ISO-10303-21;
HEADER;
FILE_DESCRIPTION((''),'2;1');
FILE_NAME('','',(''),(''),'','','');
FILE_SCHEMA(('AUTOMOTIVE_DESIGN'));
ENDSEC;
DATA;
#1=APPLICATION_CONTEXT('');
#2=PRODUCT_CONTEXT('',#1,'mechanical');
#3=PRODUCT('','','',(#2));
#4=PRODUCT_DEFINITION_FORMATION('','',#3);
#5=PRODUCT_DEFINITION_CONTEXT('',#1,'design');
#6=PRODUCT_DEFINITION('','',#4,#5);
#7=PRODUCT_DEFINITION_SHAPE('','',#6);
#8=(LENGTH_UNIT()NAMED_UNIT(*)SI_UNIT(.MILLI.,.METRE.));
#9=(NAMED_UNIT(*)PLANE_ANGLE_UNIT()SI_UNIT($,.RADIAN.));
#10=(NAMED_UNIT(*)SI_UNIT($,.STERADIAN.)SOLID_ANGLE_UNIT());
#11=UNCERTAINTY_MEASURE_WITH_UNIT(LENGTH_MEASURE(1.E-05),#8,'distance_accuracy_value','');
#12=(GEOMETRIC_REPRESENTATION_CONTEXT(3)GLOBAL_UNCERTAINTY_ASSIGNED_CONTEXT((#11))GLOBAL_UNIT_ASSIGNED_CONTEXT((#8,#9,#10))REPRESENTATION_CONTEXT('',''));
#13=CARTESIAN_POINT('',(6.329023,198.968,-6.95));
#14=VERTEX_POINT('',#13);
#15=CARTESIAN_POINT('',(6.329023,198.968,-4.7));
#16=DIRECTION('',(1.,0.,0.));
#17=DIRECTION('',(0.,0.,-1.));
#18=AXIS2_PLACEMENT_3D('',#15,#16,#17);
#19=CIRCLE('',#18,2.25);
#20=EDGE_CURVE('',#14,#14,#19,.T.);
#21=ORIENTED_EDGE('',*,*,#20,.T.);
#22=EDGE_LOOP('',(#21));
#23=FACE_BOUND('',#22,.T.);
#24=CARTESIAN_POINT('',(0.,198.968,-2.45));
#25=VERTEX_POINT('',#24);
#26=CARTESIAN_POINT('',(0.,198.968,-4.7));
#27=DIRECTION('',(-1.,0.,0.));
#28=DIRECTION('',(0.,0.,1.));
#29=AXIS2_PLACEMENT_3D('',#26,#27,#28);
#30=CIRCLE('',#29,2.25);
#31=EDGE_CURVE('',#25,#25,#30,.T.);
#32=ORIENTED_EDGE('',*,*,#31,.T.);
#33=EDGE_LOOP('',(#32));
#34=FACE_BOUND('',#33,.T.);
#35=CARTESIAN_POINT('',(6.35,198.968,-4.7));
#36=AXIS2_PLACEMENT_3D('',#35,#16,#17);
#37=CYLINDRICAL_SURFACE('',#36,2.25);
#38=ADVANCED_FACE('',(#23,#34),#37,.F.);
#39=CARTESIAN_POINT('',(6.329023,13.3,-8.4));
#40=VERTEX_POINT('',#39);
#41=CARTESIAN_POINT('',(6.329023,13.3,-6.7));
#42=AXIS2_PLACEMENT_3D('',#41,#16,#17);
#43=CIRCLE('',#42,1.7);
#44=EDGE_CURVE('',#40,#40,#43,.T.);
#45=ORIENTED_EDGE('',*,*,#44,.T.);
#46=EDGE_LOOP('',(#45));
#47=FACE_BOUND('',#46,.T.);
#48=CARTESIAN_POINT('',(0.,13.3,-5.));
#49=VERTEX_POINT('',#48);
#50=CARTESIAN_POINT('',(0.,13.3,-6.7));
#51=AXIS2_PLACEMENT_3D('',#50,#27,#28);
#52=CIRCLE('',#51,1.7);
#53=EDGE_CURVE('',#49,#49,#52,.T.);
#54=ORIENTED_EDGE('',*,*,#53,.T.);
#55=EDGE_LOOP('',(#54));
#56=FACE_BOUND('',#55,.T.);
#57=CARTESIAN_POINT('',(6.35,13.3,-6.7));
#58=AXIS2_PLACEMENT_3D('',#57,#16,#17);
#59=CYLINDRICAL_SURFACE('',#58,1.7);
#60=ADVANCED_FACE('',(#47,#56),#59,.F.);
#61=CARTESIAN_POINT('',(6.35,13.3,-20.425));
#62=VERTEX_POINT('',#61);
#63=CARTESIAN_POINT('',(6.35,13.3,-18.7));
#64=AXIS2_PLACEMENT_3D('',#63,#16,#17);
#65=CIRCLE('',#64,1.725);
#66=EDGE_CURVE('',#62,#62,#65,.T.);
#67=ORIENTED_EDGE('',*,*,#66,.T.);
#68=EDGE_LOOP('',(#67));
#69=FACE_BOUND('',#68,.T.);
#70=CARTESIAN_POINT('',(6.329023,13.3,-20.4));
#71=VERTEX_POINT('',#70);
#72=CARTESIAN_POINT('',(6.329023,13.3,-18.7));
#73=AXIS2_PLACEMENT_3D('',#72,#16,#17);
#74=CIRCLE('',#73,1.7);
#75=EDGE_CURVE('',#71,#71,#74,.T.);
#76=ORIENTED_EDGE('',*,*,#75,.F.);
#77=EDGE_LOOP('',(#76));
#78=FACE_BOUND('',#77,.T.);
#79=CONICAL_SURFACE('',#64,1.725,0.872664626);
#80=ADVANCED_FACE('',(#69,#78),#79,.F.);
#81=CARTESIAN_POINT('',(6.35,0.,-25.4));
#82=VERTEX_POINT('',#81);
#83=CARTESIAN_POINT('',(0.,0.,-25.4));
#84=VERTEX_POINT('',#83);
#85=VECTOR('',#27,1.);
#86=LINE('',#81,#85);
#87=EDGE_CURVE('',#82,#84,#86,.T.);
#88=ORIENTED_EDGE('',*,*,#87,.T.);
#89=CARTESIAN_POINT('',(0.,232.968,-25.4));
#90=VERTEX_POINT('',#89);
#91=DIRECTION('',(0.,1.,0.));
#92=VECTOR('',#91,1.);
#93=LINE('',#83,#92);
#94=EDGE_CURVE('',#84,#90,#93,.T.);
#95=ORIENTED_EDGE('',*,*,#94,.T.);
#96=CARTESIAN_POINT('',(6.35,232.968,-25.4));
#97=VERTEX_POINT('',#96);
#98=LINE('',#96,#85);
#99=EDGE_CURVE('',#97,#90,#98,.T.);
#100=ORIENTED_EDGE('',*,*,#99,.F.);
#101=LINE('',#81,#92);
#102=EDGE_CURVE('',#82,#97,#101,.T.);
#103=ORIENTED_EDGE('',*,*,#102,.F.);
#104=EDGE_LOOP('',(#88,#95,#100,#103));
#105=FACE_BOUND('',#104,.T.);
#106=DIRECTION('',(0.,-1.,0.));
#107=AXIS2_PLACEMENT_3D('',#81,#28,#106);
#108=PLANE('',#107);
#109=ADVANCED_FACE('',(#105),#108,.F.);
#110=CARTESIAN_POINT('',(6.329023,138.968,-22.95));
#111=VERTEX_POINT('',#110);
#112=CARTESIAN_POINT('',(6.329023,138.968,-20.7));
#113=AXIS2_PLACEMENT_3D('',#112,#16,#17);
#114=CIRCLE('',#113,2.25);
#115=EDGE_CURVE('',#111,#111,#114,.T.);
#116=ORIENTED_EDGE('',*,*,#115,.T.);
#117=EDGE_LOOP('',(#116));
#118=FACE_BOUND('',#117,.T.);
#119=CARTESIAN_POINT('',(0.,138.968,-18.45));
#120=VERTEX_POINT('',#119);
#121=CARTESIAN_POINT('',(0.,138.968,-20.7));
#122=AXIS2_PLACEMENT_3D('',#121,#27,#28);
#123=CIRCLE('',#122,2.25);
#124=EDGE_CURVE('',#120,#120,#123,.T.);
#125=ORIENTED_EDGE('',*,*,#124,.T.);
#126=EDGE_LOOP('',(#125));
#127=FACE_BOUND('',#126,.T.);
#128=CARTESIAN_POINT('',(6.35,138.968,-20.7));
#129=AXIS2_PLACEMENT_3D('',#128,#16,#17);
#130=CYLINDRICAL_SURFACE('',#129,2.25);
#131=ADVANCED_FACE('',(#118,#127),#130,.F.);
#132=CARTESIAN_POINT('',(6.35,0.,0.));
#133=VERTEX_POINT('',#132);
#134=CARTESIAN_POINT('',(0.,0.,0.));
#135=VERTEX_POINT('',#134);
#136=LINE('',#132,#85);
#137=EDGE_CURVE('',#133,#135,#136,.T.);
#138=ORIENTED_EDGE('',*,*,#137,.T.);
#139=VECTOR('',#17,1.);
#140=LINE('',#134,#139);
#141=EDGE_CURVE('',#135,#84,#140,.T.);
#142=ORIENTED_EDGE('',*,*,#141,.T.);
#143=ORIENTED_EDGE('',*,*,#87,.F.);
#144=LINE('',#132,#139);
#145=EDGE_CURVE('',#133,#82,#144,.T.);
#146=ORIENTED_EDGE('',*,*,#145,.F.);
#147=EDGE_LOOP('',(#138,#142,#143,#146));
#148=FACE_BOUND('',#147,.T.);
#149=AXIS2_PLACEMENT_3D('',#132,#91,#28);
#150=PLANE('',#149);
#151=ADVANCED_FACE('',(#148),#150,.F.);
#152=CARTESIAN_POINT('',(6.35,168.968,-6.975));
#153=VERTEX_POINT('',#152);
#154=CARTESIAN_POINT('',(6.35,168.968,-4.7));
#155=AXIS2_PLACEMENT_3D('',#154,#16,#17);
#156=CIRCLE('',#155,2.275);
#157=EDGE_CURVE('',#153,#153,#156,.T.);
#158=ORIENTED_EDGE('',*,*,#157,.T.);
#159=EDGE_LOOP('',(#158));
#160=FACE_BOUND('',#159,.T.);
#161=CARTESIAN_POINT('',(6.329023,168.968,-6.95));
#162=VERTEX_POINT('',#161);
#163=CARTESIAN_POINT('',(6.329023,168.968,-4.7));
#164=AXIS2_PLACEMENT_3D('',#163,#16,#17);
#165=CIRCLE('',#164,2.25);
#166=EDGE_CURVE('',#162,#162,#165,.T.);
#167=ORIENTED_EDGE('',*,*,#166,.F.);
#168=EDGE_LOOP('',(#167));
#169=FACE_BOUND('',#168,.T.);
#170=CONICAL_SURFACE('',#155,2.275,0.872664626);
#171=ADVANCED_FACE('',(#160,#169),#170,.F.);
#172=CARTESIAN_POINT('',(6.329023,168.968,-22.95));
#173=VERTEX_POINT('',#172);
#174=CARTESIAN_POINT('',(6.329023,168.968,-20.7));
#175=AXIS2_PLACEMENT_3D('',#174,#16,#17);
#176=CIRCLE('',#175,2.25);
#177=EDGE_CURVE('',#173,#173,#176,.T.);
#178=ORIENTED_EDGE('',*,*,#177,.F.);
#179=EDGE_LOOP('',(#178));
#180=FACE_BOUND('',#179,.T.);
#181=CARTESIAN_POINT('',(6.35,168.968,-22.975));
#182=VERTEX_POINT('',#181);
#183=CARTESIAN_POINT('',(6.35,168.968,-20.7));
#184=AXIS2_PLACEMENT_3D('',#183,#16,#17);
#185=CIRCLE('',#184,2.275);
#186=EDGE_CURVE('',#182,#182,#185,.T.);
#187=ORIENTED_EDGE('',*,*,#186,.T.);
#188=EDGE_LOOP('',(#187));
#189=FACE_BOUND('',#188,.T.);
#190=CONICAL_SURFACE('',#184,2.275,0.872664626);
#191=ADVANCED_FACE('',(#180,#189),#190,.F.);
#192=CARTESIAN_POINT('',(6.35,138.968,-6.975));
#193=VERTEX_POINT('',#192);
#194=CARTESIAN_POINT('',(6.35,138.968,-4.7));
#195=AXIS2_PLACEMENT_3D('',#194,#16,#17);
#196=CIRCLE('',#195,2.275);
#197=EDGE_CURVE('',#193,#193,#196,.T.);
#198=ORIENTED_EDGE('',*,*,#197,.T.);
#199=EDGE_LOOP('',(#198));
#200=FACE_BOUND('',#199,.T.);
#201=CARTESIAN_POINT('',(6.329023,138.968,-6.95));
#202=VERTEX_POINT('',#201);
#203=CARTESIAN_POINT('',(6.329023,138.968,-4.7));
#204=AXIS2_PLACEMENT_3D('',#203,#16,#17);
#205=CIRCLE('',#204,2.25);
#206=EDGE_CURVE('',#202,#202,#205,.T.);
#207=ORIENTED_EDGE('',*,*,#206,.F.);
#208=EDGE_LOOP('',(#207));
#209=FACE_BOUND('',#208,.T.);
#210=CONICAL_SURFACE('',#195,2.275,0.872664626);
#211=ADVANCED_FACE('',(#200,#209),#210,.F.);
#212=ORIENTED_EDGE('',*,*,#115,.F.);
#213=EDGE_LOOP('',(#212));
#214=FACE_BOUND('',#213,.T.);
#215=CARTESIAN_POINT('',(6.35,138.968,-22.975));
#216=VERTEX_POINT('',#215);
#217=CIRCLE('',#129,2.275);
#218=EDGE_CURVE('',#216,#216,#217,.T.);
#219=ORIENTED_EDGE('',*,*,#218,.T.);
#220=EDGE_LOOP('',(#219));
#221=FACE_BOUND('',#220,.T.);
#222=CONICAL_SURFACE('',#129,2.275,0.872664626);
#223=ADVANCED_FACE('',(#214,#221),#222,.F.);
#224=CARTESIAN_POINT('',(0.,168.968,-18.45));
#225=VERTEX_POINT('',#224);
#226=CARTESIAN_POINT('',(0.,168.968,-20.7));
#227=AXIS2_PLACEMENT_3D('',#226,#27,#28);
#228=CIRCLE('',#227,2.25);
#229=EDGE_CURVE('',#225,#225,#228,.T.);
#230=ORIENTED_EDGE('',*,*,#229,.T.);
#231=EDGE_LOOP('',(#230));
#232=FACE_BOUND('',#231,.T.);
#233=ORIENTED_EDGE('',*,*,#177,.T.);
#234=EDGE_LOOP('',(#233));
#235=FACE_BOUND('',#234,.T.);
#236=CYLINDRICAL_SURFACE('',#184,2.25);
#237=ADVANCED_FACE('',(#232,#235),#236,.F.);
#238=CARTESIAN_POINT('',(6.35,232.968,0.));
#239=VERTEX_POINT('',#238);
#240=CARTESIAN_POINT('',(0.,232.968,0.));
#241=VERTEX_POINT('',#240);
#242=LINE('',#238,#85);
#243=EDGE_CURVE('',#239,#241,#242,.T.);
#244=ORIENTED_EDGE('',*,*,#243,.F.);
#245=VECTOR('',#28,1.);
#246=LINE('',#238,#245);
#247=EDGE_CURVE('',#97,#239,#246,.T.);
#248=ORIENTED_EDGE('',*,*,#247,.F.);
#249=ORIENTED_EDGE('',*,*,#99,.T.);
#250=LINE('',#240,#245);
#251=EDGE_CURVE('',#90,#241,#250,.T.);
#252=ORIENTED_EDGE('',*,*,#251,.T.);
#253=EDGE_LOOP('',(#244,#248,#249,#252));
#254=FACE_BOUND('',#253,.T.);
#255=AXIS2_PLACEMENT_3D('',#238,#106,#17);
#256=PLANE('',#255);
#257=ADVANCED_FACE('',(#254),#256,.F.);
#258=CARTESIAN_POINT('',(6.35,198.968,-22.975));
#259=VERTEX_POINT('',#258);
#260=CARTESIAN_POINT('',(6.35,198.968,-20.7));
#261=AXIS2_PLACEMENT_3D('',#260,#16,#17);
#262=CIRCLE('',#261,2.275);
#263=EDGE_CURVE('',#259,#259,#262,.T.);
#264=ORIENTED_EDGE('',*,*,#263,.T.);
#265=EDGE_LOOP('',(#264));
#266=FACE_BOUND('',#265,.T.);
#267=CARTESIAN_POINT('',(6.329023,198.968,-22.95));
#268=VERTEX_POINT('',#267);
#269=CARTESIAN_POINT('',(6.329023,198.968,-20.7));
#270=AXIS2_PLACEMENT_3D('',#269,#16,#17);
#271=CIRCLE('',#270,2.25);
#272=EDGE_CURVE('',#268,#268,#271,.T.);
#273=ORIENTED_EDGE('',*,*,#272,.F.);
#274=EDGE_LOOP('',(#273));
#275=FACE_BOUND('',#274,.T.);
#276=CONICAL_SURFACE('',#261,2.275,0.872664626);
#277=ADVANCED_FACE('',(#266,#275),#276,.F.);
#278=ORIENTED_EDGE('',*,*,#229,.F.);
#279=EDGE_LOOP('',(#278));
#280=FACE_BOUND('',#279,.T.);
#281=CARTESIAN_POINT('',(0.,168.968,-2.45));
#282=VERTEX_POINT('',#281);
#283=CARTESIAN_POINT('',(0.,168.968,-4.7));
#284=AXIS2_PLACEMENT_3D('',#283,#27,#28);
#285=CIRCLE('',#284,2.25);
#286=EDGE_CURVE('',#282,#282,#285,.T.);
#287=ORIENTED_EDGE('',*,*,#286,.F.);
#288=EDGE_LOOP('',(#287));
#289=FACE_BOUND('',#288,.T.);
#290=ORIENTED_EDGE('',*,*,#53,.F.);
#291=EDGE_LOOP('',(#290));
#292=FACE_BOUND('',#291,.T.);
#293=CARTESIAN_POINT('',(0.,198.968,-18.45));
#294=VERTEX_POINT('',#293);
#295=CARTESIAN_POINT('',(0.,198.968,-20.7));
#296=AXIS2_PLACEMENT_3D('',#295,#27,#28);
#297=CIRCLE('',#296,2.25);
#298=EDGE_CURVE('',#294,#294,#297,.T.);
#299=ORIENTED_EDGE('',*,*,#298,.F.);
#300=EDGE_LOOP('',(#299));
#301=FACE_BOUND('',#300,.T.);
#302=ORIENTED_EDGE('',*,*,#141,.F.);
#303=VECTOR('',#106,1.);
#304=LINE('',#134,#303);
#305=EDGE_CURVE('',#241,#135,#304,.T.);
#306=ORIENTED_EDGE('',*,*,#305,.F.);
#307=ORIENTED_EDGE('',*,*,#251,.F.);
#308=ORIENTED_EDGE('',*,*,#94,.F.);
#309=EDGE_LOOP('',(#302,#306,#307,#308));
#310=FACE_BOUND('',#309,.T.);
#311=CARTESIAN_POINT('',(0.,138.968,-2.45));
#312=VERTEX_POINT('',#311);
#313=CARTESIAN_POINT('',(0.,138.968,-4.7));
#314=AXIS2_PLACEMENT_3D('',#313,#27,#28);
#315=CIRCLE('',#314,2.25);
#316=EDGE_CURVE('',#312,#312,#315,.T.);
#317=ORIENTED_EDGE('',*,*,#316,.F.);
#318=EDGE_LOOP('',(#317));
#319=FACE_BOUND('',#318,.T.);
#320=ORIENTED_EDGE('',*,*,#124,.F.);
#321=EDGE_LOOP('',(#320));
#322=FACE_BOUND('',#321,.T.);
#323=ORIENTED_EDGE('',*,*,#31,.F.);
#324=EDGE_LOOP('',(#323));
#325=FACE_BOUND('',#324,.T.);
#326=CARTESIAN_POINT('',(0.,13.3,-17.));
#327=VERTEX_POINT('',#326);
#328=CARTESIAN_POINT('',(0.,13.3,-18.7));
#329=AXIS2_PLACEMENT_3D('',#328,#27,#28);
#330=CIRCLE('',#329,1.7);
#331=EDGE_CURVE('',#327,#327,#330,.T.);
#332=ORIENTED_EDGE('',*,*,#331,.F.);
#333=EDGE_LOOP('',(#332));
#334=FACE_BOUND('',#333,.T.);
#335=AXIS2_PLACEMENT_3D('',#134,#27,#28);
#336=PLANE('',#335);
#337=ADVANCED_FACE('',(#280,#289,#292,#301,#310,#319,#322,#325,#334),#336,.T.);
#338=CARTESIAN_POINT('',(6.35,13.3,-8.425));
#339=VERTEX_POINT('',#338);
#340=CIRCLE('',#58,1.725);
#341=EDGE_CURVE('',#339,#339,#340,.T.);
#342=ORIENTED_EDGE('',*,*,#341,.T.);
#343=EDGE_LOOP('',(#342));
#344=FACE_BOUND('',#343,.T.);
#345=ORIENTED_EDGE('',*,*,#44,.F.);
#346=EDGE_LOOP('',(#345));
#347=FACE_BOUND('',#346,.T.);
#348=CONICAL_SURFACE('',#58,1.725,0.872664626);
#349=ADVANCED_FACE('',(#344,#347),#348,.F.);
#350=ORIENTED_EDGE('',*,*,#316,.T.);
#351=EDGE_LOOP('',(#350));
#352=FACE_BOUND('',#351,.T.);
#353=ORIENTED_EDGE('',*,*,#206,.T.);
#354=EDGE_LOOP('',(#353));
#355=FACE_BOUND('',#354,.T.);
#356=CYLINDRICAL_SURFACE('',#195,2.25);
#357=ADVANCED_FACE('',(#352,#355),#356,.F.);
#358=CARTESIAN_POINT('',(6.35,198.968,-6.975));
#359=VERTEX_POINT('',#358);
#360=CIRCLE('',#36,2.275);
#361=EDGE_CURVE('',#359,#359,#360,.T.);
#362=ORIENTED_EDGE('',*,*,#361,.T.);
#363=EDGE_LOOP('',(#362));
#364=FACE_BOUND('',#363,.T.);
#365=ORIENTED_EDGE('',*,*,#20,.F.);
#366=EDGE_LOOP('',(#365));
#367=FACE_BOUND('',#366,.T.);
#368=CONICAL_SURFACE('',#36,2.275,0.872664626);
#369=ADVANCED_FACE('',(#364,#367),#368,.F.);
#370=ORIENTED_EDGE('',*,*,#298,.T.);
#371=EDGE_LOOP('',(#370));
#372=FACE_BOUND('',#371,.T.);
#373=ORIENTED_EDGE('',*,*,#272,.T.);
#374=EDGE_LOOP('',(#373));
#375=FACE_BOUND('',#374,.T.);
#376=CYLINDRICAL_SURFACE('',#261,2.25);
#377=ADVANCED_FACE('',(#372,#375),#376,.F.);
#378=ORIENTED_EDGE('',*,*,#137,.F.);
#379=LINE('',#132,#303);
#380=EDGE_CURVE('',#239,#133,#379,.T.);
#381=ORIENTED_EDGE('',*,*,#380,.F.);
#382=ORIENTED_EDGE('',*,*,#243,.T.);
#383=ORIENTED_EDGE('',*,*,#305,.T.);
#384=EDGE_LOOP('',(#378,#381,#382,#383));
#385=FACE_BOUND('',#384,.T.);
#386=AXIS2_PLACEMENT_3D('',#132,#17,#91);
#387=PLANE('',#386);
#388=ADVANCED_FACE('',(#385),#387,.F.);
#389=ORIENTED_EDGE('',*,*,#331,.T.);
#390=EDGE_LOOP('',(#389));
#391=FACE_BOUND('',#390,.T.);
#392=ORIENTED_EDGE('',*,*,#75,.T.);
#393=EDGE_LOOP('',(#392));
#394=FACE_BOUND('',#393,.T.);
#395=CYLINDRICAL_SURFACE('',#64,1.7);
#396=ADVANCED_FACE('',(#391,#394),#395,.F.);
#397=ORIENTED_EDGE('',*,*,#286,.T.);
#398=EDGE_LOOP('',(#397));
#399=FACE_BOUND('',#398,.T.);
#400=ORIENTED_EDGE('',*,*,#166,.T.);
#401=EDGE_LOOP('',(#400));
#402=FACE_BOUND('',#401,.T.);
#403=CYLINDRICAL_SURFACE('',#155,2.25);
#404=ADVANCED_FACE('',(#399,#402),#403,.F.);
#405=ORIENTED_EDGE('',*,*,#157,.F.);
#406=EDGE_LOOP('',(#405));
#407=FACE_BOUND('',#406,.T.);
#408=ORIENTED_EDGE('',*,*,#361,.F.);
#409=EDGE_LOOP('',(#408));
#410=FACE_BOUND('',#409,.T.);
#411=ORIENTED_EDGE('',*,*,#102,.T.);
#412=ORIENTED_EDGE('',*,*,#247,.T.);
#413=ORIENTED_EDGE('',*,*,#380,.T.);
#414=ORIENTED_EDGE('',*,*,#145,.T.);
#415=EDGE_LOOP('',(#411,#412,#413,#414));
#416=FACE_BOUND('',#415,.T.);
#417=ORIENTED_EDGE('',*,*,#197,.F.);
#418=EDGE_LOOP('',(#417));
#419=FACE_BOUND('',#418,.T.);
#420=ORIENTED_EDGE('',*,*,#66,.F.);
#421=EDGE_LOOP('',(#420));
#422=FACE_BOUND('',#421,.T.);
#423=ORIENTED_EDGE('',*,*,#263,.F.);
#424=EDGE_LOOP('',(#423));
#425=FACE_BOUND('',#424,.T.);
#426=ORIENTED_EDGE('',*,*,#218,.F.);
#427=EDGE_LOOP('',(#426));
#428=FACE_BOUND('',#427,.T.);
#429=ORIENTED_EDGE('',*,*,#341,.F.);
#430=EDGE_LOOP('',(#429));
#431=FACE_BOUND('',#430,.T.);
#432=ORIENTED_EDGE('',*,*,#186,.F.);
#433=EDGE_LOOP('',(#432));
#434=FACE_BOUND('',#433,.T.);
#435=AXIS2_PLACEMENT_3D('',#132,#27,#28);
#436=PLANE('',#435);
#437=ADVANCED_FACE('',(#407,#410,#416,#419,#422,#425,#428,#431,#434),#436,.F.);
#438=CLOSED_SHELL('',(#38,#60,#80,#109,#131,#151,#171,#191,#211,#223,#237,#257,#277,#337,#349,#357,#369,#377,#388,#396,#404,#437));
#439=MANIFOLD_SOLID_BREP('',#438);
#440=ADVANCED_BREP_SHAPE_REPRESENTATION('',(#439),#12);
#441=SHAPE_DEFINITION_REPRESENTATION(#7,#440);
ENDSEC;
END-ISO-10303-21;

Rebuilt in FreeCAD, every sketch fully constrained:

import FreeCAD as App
import Part
import Sketcher

V = App.Vector
Q = App.Units.Quantity

doc = App.newDocument("Part")
body = doc.addObject("PartDesign::Body", "Body")

sketch1 = body.newObject("Sketcher::SketchObject", "Sketch")
sketch1.AttachmentSupport = (doc.getObject("YZ_Plane"), [""])
sketch1.MapMode = "FlatFace"
sketch1.addGeometry(Part.LineSegment(V(233, 0, 0), V(0, 0, 0)), False)
sketch1.addGeometry(Part.LineSegment(V(0, 0, 0), V(0, -25, 0)), False)
sketch1.addGeometry(Part.LineSegment(V(0, -25, 0), V(233, -25, 0)), False)
sketch1.addGeometry(Part.LineSegment(V(233, -25, 0), V(233, 0, 0)), False)
sketch1.addConstraint(Sketcher.Constraint("Coincident", 0, 2, 1, 1))
sketch1.addConstraint(Sketcher.Constraint("Coincident", 1, 2, 2, 1))
sketch1.addConstraint(Sketcher.Constraint("Coincident", 2, 2, 3, 1))
sketch1.addConstraint(Sketcher.Constraint("Coincident", 3, 2, 0, 1))
sketch1.addConstraint(Sketcher.Constraint("Horizontal", 0))
sketch1.addConstraint(Sketcher.Constraint("Vertical", 1))
sketch1.addConstraint(Sketcher.Constraint("Horizontal", 2))
sketch1.addConstraint(Sketcher.Constraint("Vertical", 3))
sketch1.addConstraint(Sketcher.Constraint("Coincident", 0, 2, -1, 1))
sketch1.addConstraint(Sketcher.Constraint("DistanceY", 1, 2, 1, 1, Q("1 in")))
sketch1.addConstraint(Sketcher.Constraint("DistanceX", 0, 2, 0, 1, Q("232.968 mm")))
pad1 = body.newObject("PartDesign::Pad", "Pad")
pad1.Profile = sketch1
pad1.Length = Q("0.25 in")

sketch2 = body.newObject("Sketcher::SketchObject", "Sketch001")
sketch2.AttachmentSupport = (doc.getObject("YZ_Plane"), [""])
sketch2.MapMode = "FlatFace"
sketch2.AttachmentOffset = App.Placement(V(0, 0, 0.25 * 25.4), App.Rotation())
sketch2.addGeometry(Part.Circle(V(13.3, -6.7, 0), V(0, 0, 1), 1.7), False)
sketch2.addGeometry(Part.Circle(V(13.3, -18.7, 0), V(0, 0, 1), 1.7), False)
sketch2.addConstraint(Sketcher.Constraint("Equal", 0, 1))
sketch2.addConstraint(Sketcher.Constraint("Vertical", 0, 3, 1, 3))
sketch2.addConstraint(Sketcher.Constraint("Diameter", 0, Q("3.4 mm")))
sketch2.addConstraint(Sketcher.Constraint("DistanceX", -1, 1, 0, 3, Q("13.3 mm")))
sketch2.addConstraint(Sketcher.Constraint("DistanceY", 0, 3, -1, 1, Q("6.7 mm")))
sketch2.addConstraint(Sketcher.Constraint("DistanceY", 1, 3, -1, 1, Q("18.7 mm")))
doc.recompute()
hole = body.newObject("PartDesign::Hole", "Hole")
hole.Profile = sketch2
hole.ThreadType = "None"
hole.Diameter = 3.4
hole.DepthType = "Dimension"
hole.Depth = Q("0.295 in")
hole.DrillPoint = "Angled"
hole.DrillPointAngle = 118
hole.HoleCutType = "Countersink"
hole.HoleCutDiameter = 3.45
hole.HoleCutCountersinkAngle = 100

sketch3 = body.newObject("Sketcher::SketchObject", "Sketch002")
sketch3.AttachmentSupport = (doc.getObject("YZ_Plane"), [""])
sketch3.MapMode = "FlatFace"
sketch3.AttachmentOffset = App.Placement(V(0, 0, 0.25 * 25.4), App.Rotation())
sketch3.addGeometry(Part.Circle(V(199, -4.7, 0), V(0, 0, 1), 2.2), False)
sketch3.addGeometry(Part.Circle(V(169, -4.7, 0), V(0, 0, 1), 2.2), False)
sketch3.addGeometry(Part.Circle(V(139, -4.7, 0), V(0, 0, 1), 2.2), False)
sketch3.addGeometry(Part.Circle(V(139, -20.7, 0), V(0, 0, 1), 2.2), False)
sketch3.addGeometry(Part.Circle(V(169, -20.7, 0), V(0, 0, 1), 2.2), False)
sketch3.addGeometry(Part.Circle(V(199, -20.7, 0), V(0, 0, 1), 2.2), False)
sketch3.addConstraint(Sketcher.Constraint("Equal", 0, 1))
sketch3.addConstraint(Sketcher.Constraint("Equal", 1, 2))
sketch3.addConstraint(Sketcher.Constraint("Equal", 2, 3))
sketch3.addConstraint(Sketcher.Constraint("Equal", 3, 4))
sketch3.addConstraint(Sketcher.Constraint("Equal", 4, 5))
sketch3.addConstraint(Sketcher.Constraint("Horizontal", 0, 3, 1, 3))
sketch3.addConstraint(Sketcher.Constraint("Horizontal", 1, 3, 2, 3))
sketch3.addConstraint(Sketcher.Constraint("Horizontal", 3, 3, 4, 3))
sketch3.addConstraint(Sketcher.Constraint("Horizontal", 4, 3, 5, 3))
sketch3.addConstraint(Sketcher.Constraint("Vertical", 2, 3, 3, 3))
sketch3.addConstraint(Sketcher.Constraint("Vertical", 1, 3, 4, 3))
sketch3.addConstraint(Sketcher.Constraint("Vertical", 0, 3, 5, 3))
sketch3.addConstraint(Sketcher.Constraint("Diameter", 0, Q("4.5 mm")))
sketch3.addConstraint(Sketcher.Constraint("DistanceX", -1, 1, 0, 3, Q("198.968 mm")))
sketch3.addConstraint(Sketcher.Constraint("DistanceY", 0, 3, -1, 1, Q("4.7 mm")))
sketch3.addConstraint(Sketcher.Constraint("DistanceX", -1, 1, 1, 3, Q("168.968 mm")))
sketch3.addConstraint(Sketcher.Constraint("DistanceX", -1, 1, 2, 3, Q("138.968 mm")))
sketch3.addConstraint(Sketcher.Constraint("DistanceY", 3, 3, -1, 1, Q("20.7 mm")))
doc.recompute()
hole2 = body.newObject("PartDesign::Hole", "Hole001")
hole2.Profile = sketch3
hole2.ThreadType = "None"
hole2.Diameter = 4.5
hole2.DepthType = "Dimension"
hole2.Depth = 10.100005
hole2.DrillPoint = "Angled"
hole2.DrillPointAngle = 118
hole2.HoleCutType = "Countersink"
hole2.HoleCutDiameter = 4.55
hole2.HoleCutCountersinkAngle = 100

doc.recompute()
